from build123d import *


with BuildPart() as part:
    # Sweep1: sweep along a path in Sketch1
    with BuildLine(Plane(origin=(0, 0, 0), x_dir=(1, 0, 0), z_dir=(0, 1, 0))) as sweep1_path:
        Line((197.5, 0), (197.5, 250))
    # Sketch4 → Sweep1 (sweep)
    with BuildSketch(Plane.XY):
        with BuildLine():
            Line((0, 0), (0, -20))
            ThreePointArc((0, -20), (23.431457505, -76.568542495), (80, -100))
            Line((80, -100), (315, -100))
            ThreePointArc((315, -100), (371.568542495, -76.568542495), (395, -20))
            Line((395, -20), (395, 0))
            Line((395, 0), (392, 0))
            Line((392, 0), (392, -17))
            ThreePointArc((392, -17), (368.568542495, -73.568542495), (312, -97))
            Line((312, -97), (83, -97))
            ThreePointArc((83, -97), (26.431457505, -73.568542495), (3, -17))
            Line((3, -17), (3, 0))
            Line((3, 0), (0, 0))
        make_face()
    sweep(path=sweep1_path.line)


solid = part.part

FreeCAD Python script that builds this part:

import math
import FreeCAD as App
import Part
import Sketcher
Q = App.Units.Quantity

doc = App.newDocument("Part")
body = doc.addObject("PartDesign::Body", "Body")

# Sketch on XY plane
sketch1 = body.newObject("Sketcher::SketchObject", "Sketch")
sketch1.AttachmentSupport = (doc.getObject("XY_Plane"), [""])
sketch1.MapMode = "FlatFace"
sketch1.addGeometry([
    Part.LineSegment(App.Vector(0, 0, 0), App.Vector(0, -20, 0)),  # 0
    Part.ArcOfCircle(Part.Circle(App.Vector(80, -20, 0), App.Vector(0, 0, 1), 80), math.radians(180), math.radians(270)),  # 1
    Part.LineSegment(App.Vector(80, -100, 0), App.Vector(315, -100, 0)),  # 2
    Part.ArcOfCircle(Part.Circle(App.Vector(315, -20, 0), App.Vector(0, 0, 1), 80), math.radians(-90), math.radians(0)),  # 3
    Part.LineSegment(App.Vector(395, -20, 0), App.Vector(395, 0, 0)),  # 4
    Part.LineSegment(App.Vector(395, 0, 0), App.Vector(392, 0, 0)),  # 5
    Part.LineSegment(App.Vector(392, 0, 0), App.Vector(392, -17, 0)),  # 6
    Part.ArcOfCircle(Part.Circle(App.Vector(312, -17, 0), App.Vector(0, 0, 1), 80), math.radians(-90), math.radians(0)),  # 7
    Part.LineSegment(App.Vector(312, -97, 0), App.Vector(83, -97, 0)),  # 8
    Part.ArcOfCircle(Part.Circle(App.Vector(83, -17, 0), App.Vector(0, 0, 1), 80), math.radians(180), math.radians(270)),  # 9
    Part.LineSegment(App.Vector(3, -17, 0), App.Vector(3, 0, 0)),  # 10
    Part.LineSegment(App.Vector(3, 0, 0), App.Vector(0, 0, 0)),  # 11
], False)
sketch1.addConstraint([
    Sketcher.Constraint("Tangent", 0, 2, 1, 1),
    Sketcher.Constraint("Tangent", 1, 2, 2, 1),
    Sketcher.Constraint("Tangent", 2, 2, 3, 1),
    Sketcher.Constraint("Tangent", 3, 2, 4, 1),
    Sketcher.Constraint("Coincident", 4, 2, 5, 1),
    Sketcher.Constraint("Coincident", 5, 2, 6, 1),
    Sketcher.Constraint("Tangent", 6, 2, 7, 2),
    Sketcher.Constraint("Tangent", 7, 1, 8, 1),
    Sketcher.Constraint("Tangent", 8, 2, 9, 2),
    Sketcher.Constraint("Tangent", 9, 1, 10, 1),
    Sketcher.Constraint("Coincident", 10, 2, 11, 1),
    Sketcher.Constraint("Coincident", 11, 2, 0, 1),
    Sketcher.Constraint("Vertical", 0),
    Sketcher.Constraint("Horizontal", 2),
    Sketcher.Constraint("Vertical", 4),
    Sketcher.Constraint("Horizontal", 5),
    Sketcher.Constraint("Vertical", 6),
    Sketcher.Constraint("Horizontal", 8),
    Sketcher.Constraint("Vertical", 10),
    Sketcher.Constraint("Horizontal", 11),
    Sketcher.Constraint("Coincident", 11, 2, -1, 1),
    Sketcher.Constraint("Equal", 1, 3),
    Sketcher.Constraint("Equal", 3, 7),
    Sketcher.Constraint("Equal", 7, 9),
    Sketcher.Constraint("PointOnObject", 4, 2, -1),
    Sketcher.Constraint("Equal", 5, 11),
    Sketcher.Constraint("Radius", 1, Q("80 mm")),
    Sketcher.Constraint("DistanceX", 2, 1, 2, 2, Q("235 mm")),
    Sketcher.Constraint("DistanceX", 5, 2, 5, 1, Q("3 mm")),
    Sketcher.Constraint("DistanceY", 0, 2, 0, 1, Q("20 mm")),
    Sketcher.Constraint("DistanceY", 6, 2, 6, 1, Q("17 mm")),
])

# Sketch on XZ plane
sketch2 = body.newObject("Sketcher::SketchObject", "Sketch001")
sketch2.AttachmentSupport = (doc.getObject("XZ_Plane"), [""])
sketch2.MapMode = "FlatFace"
sketch2.addGeometry(Part.LineSegment(App.Vector(198, 0, 0), App.Vector(198, -250, 0)), False)
sketch2.addConstraint([
    Sketcher.Constraint("Vertical", 0),
    Sketcher.Constraint("PointOnObject", 0, 1, -1),
    Sketcher.Constraint("DistanceY", 0, 2, 0, 1, Q("250 mm")),
    Sketcher.Constraint("DistanceX", -1, 1, 0, 1, Q("197.5 mm")),
])
doc.recompute()

additivepipe = body.newObject("PartDesign::AdditivePipe", "AdditivePipe")
additivepipe.Profile = sketch1
additivepipe.Spine = (sketch2, ["Edge1"])

doc.recompute()
